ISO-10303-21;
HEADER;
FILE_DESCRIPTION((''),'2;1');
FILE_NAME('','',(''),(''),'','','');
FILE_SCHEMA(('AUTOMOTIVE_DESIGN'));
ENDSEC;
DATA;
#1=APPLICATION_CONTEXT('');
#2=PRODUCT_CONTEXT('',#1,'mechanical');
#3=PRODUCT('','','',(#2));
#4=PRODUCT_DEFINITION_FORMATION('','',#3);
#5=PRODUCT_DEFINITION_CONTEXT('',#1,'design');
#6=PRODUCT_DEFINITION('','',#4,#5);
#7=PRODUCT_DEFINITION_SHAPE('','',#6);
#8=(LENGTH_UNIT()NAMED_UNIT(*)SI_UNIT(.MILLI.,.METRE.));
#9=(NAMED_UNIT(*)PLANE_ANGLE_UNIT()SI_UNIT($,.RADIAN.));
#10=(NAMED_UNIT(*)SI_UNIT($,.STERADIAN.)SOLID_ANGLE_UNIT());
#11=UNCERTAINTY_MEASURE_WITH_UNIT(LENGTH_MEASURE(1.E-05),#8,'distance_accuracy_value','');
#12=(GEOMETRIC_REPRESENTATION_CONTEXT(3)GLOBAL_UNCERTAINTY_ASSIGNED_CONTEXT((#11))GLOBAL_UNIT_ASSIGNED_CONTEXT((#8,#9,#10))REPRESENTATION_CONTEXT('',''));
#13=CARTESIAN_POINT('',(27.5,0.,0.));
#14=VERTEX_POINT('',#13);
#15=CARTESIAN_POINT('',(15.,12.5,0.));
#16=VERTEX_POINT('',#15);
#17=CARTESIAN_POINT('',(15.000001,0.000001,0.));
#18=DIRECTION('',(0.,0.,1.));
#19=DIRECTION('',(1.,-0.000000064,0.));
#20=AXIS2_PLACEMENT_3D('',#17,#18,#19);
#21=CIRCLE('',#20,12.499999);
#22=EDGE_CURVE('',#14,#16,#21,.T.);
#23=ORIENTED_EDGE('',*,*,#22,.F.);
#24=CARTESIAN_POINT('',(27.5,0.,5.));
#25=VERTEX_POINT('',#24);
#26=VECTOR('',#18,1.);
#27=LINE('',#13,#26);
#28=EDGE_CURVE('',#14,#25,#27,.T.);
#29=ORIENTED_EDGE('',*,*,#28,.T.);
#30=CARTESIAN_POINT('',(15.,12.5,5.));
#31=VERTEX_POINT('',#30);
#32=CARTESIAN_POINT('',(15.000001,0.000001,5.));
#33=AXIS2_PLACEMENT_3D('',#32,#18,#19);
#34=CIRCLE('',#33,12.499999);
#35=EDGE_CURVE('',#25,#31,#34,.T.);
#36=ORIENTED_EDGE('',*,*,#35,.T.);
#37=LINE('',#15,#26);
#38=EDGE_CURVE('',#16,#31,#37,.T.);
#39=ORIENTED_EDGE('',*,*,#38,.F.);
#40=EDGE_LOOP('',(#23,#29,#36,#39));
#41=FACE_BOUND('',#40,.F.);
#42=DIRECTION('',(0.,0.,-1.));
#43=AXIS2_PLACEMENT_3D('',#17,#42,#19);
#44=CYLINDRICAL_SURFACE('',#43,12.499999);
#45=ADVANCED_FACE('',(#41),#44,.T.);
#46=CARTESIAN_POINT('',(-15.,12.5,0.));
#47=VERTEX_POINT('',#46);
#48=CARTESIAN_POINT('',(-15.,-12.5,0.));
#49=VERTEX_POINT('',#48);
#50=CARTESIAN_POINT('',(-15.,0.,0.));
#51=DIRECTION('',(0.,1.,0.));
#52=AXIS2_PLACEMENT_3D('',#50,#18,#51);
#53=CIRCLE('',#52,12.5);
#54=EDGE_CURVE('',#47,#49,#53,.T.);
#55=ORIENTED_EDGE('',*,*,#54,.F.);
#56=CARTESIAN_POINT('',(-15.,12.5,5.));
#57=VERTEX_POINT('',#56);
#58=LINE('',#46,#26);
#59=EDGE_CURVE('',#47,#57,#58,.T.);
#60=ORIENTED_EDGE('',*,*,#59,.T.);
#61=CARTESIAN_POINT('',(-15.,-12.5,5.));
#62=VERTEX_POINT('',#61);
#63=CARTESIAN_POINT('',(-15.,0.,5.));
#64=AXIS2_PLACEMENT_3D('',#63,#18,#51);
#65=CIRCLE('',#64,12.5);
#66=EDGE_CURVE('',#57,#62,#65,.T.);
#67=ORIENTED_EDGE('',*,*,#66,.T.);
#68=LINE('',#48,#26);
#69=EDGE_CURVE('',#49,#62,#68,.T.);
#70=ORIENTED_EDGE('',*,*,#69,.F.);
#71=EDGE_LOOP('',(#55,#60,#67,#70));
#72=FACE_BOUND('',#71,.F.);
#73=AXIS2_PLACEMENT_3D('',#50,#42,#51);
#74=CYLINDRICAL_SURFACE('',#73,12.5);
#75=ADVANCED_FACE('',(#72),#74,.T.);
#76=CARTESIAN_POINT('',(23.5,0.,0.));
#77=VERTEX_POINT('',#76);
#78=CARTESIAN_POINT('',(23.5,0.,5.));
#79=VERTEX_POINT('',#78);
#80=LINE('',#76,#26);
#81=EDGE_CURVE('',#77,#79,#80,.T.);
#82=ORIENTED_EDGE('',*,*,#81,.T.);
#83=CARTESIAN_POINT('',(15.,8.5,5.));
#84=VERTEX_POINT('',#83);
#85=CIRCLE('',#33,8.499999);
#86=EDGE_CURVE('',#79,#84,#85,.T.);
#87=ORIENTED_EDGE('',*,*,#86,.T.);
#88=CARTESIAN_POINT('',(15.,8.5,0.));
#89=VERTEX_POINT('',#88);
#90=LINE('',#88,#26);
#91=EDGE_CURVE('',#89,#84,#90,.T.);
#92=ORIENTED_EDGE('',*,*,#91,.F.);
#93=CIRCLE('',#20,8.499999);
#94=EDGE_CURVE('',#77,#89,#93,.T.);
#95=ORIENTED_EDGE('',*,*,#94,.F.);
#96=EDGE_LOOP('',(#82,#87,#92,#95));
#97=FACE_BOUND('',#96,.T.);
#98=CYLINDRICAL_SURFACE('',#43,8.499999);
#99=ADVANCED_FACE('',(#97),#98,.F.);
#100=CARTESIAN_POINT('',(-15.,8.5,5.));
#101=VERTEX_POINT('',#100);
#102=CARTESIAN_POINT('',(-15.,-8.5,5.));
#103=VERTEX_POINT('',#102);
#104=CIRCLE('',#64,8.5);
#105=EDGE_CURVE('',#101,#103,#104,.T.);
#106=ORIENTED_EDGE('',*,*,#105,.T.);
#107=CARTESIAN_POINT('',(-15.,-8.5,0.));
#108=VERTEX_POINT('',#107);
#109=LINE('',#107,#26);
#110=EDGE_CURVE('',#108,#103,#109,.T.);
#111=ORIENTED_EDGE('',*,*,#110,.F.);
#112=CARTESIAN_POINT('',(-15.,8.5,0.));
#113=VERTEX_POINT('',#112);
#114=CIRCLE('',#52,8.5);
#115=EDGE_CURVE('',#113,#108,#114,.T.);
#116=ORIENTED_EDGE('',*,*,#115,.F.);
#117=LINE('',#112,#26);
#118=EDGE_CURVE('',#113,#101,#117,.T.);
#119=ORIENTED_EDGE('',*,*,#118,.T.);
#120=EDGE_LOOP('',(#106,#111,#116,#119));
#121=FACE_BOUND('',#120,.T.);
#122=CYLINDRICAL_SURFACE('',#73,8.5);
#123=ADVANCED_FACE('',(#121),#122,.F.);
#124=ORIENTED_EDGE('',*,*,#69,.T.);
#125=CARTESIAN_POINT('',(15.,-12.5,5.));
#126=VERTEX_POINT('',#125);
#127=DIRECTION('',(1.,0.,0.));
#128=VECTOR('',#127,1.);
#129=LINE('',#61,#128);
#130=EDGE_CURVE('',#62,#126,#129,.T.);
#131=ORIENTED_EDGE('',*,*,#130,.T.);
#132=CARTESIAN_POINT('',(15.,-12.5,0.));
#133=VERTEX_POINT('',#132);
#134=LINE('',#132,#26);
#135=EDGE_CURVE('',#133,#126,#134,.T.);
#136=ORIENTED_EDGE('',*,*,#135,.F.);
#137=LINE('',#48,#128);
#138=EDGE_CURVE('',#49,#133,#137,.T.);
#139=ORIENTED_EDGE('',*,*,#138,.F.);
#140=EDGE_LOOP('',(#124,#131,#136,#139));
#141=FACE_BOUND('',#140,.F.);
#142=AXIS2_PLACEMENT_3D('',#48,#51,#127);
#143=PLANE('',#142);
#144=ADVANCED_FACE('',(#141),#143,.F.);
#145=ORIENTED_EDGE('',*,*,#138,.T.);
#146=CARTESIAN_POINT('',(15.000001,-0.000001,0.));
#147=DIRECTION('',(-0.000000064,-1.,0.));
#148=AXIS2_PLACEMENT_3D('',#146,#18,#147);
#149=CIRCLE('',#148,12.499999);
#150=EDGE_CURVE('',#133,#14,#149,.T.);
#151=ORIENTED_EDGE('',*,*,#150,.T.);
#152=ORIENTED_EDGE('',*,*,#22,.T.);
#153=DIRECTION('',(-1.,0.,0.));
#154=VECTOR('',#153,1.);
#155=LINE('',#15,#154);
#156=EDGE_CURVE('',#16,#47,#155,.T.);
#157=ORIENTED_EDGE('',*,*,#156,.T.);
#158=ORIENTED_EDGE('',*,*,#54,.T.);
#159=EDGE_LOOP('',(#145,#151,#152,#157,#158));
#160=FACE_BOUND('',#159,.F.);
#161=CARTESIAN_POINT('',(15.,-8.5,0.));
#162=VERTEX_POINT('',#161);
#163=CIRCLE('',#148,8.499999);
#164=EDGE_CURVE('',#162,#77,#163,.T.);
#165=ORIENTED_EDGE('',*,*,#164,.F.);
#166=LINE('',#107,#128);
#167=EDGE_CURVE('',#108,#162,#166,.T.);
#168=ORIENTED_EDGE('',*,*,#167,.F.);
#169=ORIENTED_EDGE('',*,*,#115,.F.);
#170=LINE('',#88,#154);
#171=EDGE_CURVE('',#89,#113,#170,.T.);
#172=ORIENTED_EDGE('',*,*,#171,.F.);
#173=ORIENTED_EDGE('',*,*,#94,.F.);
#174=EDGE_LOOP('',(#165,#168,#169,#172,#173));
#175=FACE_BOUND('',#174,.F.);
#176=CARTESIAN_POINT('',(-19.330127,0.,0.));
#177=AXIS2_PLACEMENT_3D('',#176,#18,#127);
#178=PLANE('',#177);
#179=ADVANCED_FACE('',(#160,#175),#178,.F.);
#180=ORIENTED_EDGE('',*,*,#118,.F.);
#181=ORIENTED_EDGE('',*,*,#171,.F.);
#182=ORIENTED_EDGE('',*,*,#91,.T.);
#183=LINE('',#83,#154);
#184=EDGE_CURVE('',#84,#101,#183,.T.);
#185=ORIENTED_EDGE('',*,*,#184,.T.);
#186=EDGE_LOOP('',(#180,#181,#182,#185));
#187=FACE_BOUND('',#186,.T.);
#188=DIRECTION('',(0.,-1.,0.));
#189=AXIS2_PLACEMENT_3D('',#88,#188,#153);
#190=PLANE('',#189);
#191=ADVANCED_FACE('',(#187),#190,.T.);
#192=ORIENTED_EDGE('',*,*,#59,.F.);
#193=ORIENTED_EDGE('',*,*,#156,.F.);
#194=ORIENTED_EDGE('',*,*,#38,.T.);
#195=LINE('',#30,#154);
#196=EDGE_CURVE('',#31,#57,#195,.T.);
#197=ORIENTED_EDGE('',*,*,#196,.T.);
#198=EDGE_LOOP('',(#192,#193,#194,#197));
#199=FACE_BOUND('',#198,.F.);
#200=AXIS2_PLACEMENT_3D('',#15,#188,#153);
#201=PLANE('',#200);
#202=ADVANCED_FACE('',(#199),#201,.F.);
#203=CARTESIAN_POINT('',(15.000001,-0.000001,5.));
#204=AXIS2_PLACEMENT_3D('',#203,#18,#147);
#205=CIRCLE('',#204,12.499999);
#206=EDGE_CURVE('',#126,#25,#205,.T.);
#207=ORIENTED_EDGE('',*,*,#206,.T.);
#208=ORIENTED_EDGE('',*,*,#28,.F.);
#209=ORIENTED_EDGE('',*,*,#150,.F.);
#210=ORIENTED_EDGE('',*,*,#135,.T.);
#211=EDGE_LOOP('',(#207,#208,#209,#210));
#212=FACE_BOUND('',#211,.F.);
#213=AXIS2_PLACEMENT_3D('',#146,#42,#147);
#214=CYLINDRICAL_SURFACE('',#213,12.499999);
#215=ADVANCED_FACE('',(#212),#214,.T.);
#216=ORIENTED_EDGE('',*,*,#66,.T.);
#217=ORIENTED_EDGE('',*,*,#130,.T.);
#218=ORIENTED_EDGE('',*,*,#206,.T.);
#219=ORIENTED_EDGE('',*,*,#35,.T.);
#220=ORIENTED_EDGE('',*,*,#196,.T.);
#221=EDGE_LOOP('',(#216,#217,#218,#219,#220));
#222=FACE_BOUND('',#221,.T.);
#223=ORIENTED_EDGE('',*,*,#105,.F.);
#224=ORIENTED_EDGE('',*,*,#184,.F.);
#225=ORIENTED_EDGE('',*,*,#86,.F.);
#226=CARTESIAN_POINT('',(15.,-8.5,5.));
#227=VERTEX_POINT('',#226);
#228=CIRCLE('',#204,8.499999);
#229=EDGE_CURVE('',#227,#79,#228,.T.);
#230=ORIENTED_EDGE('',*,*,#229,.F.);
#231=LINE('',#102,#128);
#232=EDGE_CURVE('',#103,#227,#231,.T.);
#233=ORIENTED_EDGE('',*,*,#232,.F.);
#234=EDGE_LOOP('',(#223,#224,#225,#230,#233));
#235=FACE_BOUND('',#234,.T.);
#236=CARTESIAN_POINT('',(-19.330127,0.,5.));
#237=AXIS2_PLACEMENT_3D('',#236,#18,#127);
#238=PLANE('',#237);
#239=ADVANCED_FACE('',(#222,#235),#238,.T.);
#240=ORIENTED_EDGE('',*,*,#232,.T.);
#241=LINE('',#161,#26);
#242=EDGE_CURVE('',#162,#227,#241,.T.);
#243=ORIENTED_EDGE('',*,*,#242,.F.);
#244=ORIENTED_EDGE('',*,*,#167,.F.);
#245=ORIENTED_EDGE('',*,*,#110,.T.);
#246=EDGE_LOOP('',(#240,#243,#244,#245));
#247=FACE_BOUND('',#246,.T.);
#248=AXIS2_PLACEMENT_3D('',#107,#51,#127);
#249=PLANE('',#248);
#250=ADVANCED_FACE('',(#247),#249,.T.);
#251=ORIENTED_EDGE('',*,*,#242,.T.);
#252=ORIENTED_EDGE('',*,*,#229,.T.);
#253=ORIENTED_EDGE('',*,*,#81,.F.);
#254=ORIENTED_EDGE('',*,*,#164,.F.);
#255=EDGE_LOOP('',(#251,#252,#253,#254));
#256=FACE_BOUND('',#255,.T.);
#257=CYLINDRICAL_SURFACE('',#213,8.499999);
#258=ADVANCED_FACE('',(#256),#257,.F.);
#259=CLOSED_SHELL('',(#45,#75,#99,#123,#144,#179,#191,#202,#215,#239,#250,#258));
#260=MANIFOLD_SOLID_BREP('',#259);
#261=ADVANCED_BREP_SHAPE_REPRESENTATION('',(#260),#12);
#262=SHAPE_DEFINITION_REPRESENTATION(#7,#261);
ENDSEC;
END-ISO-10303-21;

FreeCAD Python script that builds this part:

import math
import FreeCAD as App
import Part
import Sketcher
Q = App.Units.Quantity


def faces_at(feature, points):
    """Names of the faces that lie closest to the given points."""
    faces = feature.Shape.Faces
    near = lambda p: min(range(len(faces)), key=lambda i: faces[i].distToShape(Part.Vertex(*p))[0])
    return sorted({f"Face{near(p) + 1}" for p in points})

doc = App.newDocument("Part")
body = doc.addObject("PartDesign::Body", "Body")

sketch1 = body.newObject("Sketcher::SketchObject", "Sketch")
sketch1.AttachmentSupport = (doc.getObject("XY_Plane"), [""])
sketch1.MapMode = "FlatFace"
sketch1.addGeometry([
    Part.ArcOfCircle(Part.Circle(App.Vector(-15, 0, 0), App.Vector(0, 0, 1), 12), math.radians(90), math.radians(270)),
    Part.LineSegment(App.Vector(-15, -12, 0), App.Vector(15, -12, 0)),
    Part.ArcOfCircle(Part.Circle(App.Vector(15, 0, 0), App.Vector(0, 0, 1), 12), math.radians(-90), math.radians(0)),
    Part.ArcOfCircle(Part.Circle(App.Vector(15, 0, 0), App.Vector(0, 0, 1), 12), math.radians(0), math.radians(90)),
    Part.LineSegment(App.Vector(15, 12, 0), App.Vector(-15, 12, 0)),
], False)
sketch1.addConstraint([
    Sketcher.Constraint("Tangent", 0, 2, 1, 1),
    Sketcher.Constraint("Tangent", 1, 2, 2, 1),
    Sketcher.Constraint("Tangent", 2, 2, 3, 1),
    Sketcher.Constraint("Tangent", 3, 2, 4, 1),
    Sketcher.Constraint("Tangent", 4, 2, 0, 1),
    Sketcher.Constraint("Horizontal", 1),
    Sketcher.Constraint("Horizontal", 4),
    Sketcher.Constraint("Equal", 0, 2),
    Sketcher.Constraint("Symmetric", 0, 3, 2, 3, -1, 1),
    Sketcher.Constraint("PointOnObject", 2, 2, -1),
    Sketcher.Constraint("Radius", 0, Q("12.5 mm")),
    Sketcher.Constraint("DistanceX", 1, 1, 1, 2, Q("30 mm")),
])
pad1 = body.newObject("PartDesign::Pad", "Pad")
pad1.Profile = sketch1
pad1.Length = 5
doc.recompute()

thickness = body.newObject("PartDesign::Thickness", "Thickness")
thickness.Base = (pad1, faces_at(pad1, [(0, 0, 5), (0, 0, 0)]))
thickness.Value = 4
thickness.Reversed = True
thickness.Join = "Arc"

doc.recompute()
